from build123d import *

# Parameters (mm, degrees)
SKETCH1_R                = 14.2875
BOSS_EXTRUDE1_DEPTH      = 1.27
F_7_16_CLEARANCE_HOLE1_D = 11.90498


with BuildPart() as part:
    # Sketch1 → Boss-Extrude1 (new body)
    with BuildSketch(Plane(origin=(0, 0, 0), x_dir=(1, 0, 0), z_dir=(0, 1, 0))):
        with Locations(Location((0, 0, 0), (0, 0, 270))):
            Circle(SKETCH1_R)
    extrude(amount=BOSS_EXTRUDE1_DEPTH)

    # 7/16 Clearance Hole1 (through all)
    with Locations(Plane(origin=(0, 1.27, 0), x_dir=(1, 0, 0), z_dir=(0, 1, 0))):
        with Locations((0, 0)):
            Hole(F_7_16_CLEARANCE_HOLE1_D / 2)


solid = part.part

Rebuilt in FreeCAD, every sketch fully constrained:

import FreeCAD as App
import Part
import Sketcher
from FreeCAD import Vector
Q = App.Units.Quantity

doc = App.newDocument("Part")
params = doc.addObject("Spreadsheet::Sheet", "Params")
for row, (alias, value) in enumerate([
    ("sketch1_diameter", "1.125 in"),
    ("pad1_length", "0.05 in"),
    ("hole_diameter", "0.4687 in"),
], start=1):
    params.set(f"A{row}", alias)
    params.set(f"B{row}", "=" + value)
    params.setAlias(f"B{row}", alias)

body = doc.addObject("PartDesign::Body", "Body")

# Sketch on XZ plane
sketch1 = body.newObject("Sketcher::SketchObject", "Sketch")
sketch1.AttachmentSupport = (doc.getObject("XZ_Plane"), [""])
sketch1.MapMode = "FlatFace"
sketch1.addGeometry(Part.Circle(Vector(0, 0, 0), Vector(0, 0, 1), 14), False)
sketch1.addConstraint([
    Sketcher.Constraint("Coincident", 0, 3, -1, 1),
    Sketcher.Constraint("Diameter", 0, Q("1.125 in")),
])
sketch1.setExpression("Constraints[1]", "Params.sketch1_diameter")
pad1 = body.newObject("PartDesign::Pad", "Pad")
pad1.Profile = sketch1
pad1.setExpression("Length", "Params.pad1_length")
pad1.Reversed = True

# Sketch on XZ plane
sketch2 = body.newObject("Sketcher::SketchObject", "Sketch001")
sketch2.AttachmentSupport = (doc.getObject("XZ_Plane"), [""])
sketch2.MapMode = "FlatFace"
sketch2.AttachmentOffset = App.Placement(Vector(0, 0, -0.05 * 25.4), App.Rotation())
sketch2.addGeometry(Part.Circle(Vector(0, 0, 0), Vector(0, 0, 1), 6), False)
sketch2.addConstraint([
    Sketcher.Constraint("Coincident", 0, 3, -1, 1),
    Sketcher.Constraint("Diameter", 0, Q("0.4687 in")),
])
doc.recompute()
hole = body.newObject("PartDesign::Hole", "Hole")
hole.Profile = sketch2
hole.ThreadType = "None"
hole.setExpression("Diameter", "Params.hole_diameter")
hole.DepthType = "ThroughAll"
hole.Reversed = True

doc.recompute()
